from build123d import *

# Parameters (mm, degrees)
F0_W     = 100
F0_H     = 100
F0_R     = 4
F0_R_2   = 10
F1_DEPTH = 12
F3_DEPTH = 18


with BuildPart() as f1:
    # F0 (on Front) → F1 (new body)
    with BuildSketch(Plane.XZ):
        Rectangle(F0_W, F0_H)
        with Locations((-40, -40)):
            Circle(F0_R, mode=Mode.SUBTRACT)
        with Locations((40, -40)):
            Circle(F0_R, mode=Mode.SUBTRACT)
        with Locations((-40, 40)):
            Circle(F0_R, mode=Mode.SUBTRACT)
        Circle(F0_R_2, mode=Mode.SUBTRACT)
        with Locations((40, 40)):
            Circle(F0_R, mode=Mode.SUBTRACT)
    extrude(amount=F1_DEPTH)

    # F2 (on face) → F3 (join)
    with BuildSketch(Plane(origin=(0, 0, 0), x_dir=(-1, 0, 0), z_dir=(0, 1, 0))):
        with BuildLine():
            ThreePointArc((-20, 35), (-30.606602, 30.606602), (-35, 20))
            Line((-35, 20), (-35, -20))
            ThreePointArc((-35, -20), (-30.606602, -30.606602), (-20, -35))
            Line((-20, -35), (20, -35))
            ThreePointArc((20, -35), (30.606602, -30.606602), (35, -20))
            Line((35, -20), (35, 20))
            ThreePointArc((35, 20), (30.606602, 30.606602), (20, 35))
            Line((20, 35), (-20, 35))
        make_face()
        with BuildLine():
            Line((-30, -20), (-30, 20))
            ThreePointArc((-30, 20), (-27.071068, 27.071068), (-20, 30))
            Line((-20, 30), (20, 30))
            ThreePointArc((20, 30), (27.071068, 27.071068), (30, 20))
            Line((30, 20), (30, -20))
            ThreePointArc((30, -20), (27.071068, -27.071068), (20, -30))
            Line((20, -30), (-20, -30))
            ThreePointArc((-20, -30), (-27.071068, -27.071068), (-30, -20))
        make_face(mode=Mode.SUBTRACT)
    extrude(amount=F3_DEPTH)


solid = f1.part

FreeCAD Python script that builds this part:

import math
import FreeCAD as App
import Part
import Sketcher
from FreeCAD import Vector
Q = App.Units.Quantity

doc = App.newDocument("Part")
body = doc.addObject("PartDesign::Body", "Body")

sketch1 = body.newObject("Sketcher::SketchObject", "Sketch")
sketch1.AttachmentSupport = (doc.getObject("XZ_Plane"), [""])
sketch1.MapMode = "FlatFace"
sketch1.addGeometry([
    Part.LineSegment(Vector(-50, 50, 0), Vector(-50, -50, 0)),
    Part.LineSegment(Vector(-50, -50, 0), Vector(50, -50, 0)),
    Part.LineSegment(Vector(50, -50, 0), Vector(50, 50, 0)),
    Part.LineSegment(Vector(50, 50, 0), Vector(-50, 50, 0)),
    Part.Circle(Vector(-40, -40, 0), Vector(0, 0, 1), 4),
    Part.Circle(Vector(40, -40, 0), Vector(0, 0, 1), 4),
    Part.Circle(Vector(-40, 40, 0), Vector(0, 0, 1), 4),
    Part.Circle(Vector(0, 0, 0), Vector(0, 0, 1), 10),
    Part.Circle(Vector(40, 40, 0), Vector(0, 0, 1), 4),
], False)
sketch1.addConstraint([
    Sketcher.Constraint("Coincident", 0, 2, 1, 1),
    Sketcher.Constraint("Coincident", 1, 2, 2, 1),
    Sketcher.Constraint("Coincident", 2, 2, 3, 1),
    Sketcher.Constraint("Coincident", 3, 2, 0, 1),
    Sketcher.Constraint("Vertical", 0),
    Sketcher.Constraint("Horizontal", 1),
    Sketcher.Constraint("Vertical", 2),
    Sketcher.Constraint("Horizontal", 3),
    Sketcher.Constraint("Coincident", 7, 3, -1, 1),
    Sketcher.Constraint("Equal", 4, 5),
    Sketcher.Constraint("Equal", 5, 6),
    Sketcher.Constraint("Equal", 6, 8),
    Sketcher.Constraint("Symmetric", 5, 3, 6, 3, -1, 1),
    Sketcher.Constraint("Symmetric", 4, 3, 8, 3, -1, 1),
    Sketcher.Constraint("Symmetric", 0, 2, 2, 2, -1, 1),
    Sketcher.Constraint("Symmetric", 4, 3, 5, 3, -2),
    Sketcher.Constraint("Equal", 3, 0),
    Sketcher.Constraint("Diameter", 4, Q("8 mm")),
    Sketcher.Constraint("Diameter", 7, Q("20 mm")),
    Sketcher.Constraint("DistanceX", 1, 1, 1, 2, Q("100 mm")),
    Sketcher.Constraint("DistanceX", 4, 3, -1, 1, Q("40 mm")),
    Sketcher.Constraint("DistanceY", 4, 3, -1, 1, Q("40 mm")),
])
pad1 = body.newObject("PartDesign::Pad", "Pad")
pad1.Profile = sketch1
pad1.Length = 12

sketch2 = body.newObject("Sketcher::SketchObject", "Sketch001")
sketch2.AttachmentSupport = (doc.getObject("XZ_Plane"), [""])
sketch2.MapMode = "FlatFace"
sketch2.addGeometry([
    Part.ArcOfCircle(Part.Circle(Vector(20, 20, 0), Vector(0, 0, 1), 15), math.radians(0), math.radians(90)),
    Part.LineSegment(Vector(35, 20, 0), Vector(35, -20, 0)),
    Part.ArcOfCircle(Part.Circle(Vector(20, -20, 0), Vector(0, 0, 1), 15), math.radians(-90), math.radians(0)),
    Part.LineSegment(Vector(20, -35, 0), Vector(-20, -35, 0)),
    Part.ArcOfCircle(Part.Circle(Vector(-20, -20, 0), Vector(0, 0, 1), 15), math.radians(180), math.radians(270)),
    Part.LineSegment(Vector(-35, -20, 0), Vector(-35, 20, 0)),
    Part.ArcOfCircle(Part.Circle(Vector(-20, 20, 0), Vector(0, 0, 1), 15), math.radians(90), math.radians(180)),
    Part.LineSegment(Vector(-20, 35, 0), Vector(20, 35, 0)),
    Part.ArcOfCircle(Part.Circle(Vector(20, -20, 0), Vector(0, 0, 1), 10), math.radians(-90), math.radians(0)),
    Part.LineSegment(Vector(30, -20, 0), Vector(30, 20, 0)),
    Part.ArcOfCircle(Part.Circle(Vector(20, 20, 0), Vector(0, 0, 1), 10), math.radians(0), math.radians(90)),
    Part.LineSegment(Vector(20, 30, 0), Vector(-20, 30, 0)),
    Part.ArcOfCircle(Part.Circle(Vector(-20, 20, 0), Vector(0, 0, 1), 10), math.radians(90), math.radians(180)),
    Part.LineSegment(Vector(-30, 20, 0), Vector(-30, -20, 0)),
    Part.ArcOfCircle(Part.Circle(Vector(-20, -20, 0), Vector(0, 0, 1), 10), math.radians(180), math.radians(270)),
    Part.LineSegment(Vector(-20, -30, 0), Vector(20, -30, 0)),
], False)
sketch2.addConstraint([
    Sketcher.Constraint("Tangent", 0, 1, 1, 1),
    Sketcher.Constraint("Tangent", 1, 2, 2, 2),
    Sketcher.Constraint("Tangent", 2, 1, 3, 1),
    Sketcher.Constraint("Tangent", 3, 2, 4, 2),
    Sketcher.Constraint("Tangent", 4, 1, 5, 1),
    Sketcher.Constraint("Tangent", 5, 2, 6, 2),
    Sketcher.Constraint("Tangent", 6, 1, 7, 1),
    Sketcher.Constraint("Tangent", 7, 2, 0, 2),
    Sketcher.Constraint("Tangent", 8, 2, 9, 1),
    Sketcher.Constraint("Tangent", 9, 2, 10, 1),
    Sketcher.Constraint("Tangent", 10, 2, 11, 1),
    Sketcher.Constraint("Tangent", 11, 2, 12, 1),
    Sketcher.Constraint("Tangent", 12, 2, 13, 1),
    Sketcher.Constraint("Tangent", 13, 2, 14, 1),
    Sketcher.Constraint("Tangent", 14, 2, 15, 1),
    Sketcher.Constraint("Tangent", 15, 2, 8, 1),
    Sketcher.Constraint("Vertical", 1),
    Sketcher.Constraint("Horizontal", 3),
    Sketcher.Constraint("Vertical", 5),
    Sketcher.Constraint("Horizontal", 7),
    Sketcher.Constraint("Vertical", 9),
    Sketcher.Constraint("Horizontal", 11),
    Sketcher.Constraint("Vertical", 13),
    Sketcher.Constraint("Horizontal", 15),
    Sketcher.Constraint("Coincident", 8, 3, 2, 3),
    Sketcher.Constraint("Coincident", 10, 3, 0, 3),
    Sketcher.Constraint("Coincident", 12, 3, 6, 3),
    Sketcher.Constraint("Equal", 0, 2),
    Sketcher.Constraint("Equal", 2, 4),
    Sketcher.Constraint("Equal", 4, 6),
    Sketcher.Constraint("Equal", 12, 14),
    Sketcher.Constraint("Symmetric", 0, 3, 4, 3, -1, 1),
    Sketcher.Constraint("Equal", 15, 1),
    Sketcher.Constraint("Radius", 0, Q("14.999999 mm")),
    Sketcher.Constraint("Radius", 8, Q("9.999999 mm")),
    Sketcher.Constraint("DistanceX", 3, 2, 3, 1, Q("40 mm")),
])
pad2 = body.newObject("PartDesign::Pad", "Pad001")
pad2.Profile = sketch2
pad2.Length = 18
pad2.Reversed = True

doc.recompute()
